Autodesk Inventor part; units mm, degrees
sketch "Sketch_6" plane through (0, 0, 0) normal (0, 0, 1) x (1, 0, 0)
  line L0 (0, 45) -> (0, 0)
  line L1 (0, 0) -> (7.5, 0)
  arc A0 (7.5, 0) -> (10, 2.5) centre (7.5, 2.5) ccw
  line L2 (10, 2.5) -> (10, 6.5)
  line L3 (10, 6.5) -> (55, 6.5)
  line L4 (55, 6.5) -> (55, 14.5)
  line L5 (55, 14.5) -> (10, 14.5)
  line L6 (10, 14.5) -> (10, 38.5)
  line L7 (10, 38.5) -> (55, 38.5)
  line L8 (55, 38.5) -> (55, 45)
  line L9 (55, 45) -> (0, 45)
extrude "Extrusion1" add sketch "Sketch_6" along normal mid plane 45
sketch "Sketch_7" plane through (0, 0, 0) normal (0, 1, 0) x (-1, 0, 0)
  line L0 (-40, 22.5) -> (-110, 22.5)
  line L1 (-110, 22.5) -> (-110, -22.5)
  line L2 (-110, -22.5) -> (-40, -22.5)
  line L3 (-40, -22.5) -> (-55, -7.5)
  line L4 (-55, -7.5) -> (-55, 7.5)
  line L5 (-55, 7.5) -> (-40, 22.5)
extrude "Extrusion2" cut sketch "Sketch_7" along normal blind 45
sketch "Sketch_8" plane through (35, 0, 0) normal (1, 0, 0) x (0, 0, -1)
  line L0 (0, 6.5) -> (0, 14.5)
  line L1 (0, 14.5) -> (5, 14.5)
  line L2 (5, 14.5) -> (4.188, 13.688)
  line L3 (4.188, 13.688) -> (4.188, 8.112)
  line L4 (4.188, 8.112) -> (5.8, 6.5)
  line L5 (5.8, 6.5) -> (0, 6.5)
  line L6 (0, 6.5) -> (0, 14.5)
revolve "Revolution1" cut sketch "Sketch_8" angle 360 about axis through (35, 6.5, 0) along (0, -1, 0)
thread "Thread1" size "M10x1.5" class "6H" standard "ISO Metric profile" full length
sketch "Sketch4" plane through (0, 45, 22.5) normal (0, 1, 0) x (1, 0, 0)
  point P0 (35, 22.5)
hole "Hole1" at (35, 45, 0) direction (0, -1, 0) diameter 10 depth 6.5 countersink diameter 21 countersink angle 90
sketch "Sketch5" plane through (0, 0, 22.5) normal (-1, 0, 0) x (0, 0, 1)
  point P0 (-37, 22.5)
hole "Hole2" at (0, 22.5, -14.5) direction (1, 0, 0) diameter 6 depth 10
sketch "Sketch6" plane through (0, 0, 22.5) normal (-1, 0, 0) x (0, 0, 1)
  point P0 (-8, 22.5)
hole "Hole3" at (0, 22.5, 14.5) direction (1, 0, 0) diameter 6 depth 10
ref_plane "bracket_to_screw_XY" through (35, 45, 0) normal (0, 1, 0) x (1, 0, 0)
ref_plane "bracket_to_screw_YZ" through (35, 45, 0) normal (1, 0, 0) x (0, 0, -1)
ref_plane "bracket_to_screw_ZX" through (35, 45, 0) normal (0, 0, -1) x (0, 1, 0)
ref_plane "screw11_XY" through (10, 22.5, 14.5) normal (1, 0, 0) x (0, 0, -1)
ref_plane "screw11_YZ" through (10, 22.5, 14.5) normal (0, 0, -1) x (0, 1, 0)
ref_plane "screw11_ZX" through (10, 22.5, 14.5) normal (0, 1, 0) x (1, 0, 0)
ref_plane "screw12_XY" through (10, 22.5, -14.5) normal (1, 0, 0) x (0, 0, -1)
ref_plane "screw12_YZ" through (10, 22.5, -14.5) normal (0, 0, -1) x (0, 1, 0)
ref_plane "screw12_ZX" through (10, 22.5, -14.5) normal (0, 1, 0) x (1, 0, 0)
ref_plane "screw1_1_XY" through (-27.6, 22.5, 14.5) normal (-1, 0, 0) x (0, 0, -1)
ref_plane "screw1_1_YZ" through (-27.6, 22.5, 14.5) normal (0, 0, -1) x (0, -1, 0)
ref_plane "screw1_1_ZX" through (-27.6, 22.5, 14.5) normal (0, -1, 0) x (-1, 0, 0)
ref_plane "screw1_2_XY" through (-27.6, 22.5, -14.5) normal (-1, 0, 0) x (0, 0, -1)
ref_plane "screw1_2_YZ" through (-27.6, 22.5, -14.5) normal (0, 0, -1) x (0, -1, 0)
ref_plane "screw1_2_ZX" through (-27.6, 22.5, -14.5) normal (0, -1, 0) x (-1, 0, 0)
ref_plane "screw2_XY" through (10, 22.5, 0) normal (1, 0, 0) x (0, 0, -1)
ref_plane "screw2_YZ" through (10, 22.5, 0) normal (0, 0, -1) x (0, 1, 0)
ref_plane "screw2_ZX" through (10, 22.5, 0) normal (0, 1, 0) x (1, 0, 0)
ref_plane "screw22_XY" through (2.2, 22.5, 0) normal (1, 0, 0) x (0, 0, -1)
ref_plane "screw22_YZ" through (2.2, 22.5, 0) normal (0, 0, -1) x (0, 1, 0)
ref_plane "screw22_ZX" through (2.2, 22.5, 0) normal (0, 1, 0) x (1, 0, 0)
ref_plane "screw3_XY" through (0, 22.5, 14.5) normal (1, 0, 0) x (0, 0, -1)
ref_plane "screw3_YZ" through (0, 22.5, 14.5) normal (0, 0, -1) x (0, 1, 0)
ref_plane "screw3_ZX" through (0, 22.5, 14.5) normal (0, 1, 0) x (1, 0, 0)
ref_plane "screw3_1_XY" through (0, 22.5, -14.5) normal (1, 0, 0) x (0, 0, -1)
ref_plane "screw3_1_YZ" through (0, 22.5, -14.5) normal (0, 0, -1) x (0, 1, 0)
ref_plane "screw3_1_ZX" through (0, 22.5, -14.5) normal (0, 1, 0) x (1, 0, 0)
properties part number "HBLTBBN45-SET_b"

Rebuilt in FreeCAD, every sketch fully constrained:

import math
import FreeCAD as App
import Part
import Sketcher
Q = App.Units.Quantity

doc = App.newDocument("Part")
body = doc.addObject("PartDesign::Body", "Body")

# Sketch on XY plane
sketch1 = body.newObject("Sketcher::SketchObject", "Sketch")
sketch1.AttachmentSupport = (doc.getObject("XY_Plane"), [""])
sketch1.MapMode = "FlatFace"
sketch1.addGeometry([
    Part.LineSegment(App.Vector(55, 45, 0), App.Vector(0, 45, 0)),  # 0
    Part.LineSegment(App.Vector(0, 45, 0), App.Vector(0, 0, 0)),  # 1
    Part.LineSegment(App.Vector(0, 0, 0), App.Vector(7.5, 0, 0)),  # 2
    Part.ArcOfCircle(Part.Circle(App.Vector(7.5, 2.5, 0), App.Vector(0, 0, 1), 2.5), math.radians(-90), math.radians(0)),  # 3
    Part.LineSegment(App.Vector(10, 2.5, 0), App.Vector(10, 6.5, 0)),  # 4
    Part.LineSegment(App.Vector(10, 6.5, 0), App.Vector(55, 6.5, 0)),  # 5
    Part.LineSegment(App.Vector(55, 6.5, 0), App.Vector(55, 14.5, 0)),  # 6
    Part.LineSegment(App.Vector(55, 14.5, 0), App.Vector(10, 14.5, 0)),  # 7
    Part.LineSegment(App.Vector(10, 14.5, 0), App.Vector(10, 38.5, 0)),  # 8
    Part.LineSegment(App.Vector(10, 38.5, 0), App.Vector(55, 38.5, 0)),  # 9
    Part.LineSegment(App.Vector(55, 38.5, 0), App.Vector(55, 45, 0)),  # 10
], False)
sketch1.addConstraint([
    Sketcher.Constraint("Coincident", 0, 2, 1, 1),
    Sketcher.Constraint("Coincident", 1, 2, 2, 1),
    Sketcher.Constraint("Tangent", 2, 2, 3, 1),
    Sketcher.Constraint("Tangent", 3, 2, 4, 1),
    Sketcher.Constraint("Coincident", 4, 2, 5, 1),
    Sketcher.Constraint("Coincident", 5, 2, 6, 1),
    Sketcher.Constraint("Coincident", 6, 2, 7, 1),
    Sketcher.Constraint("Coincident", 7, 2, 8, 1),
    Sketcher.Constraint("Coincident", 8, 2, 9, 1),
    Sketcher.Constraint("Coincident", 9, 2, 10, 1),
    Sketcher.Constraint("Coincident", 10, 2, 0, 1),
    Sketcher.Constraint("Horizontal", 0),
    Sketcher.Constraint("Vertical", 1),
    Sketcher.Constraint("Horizontal", 2),
    Sketcher.Constraint("Vertical", 4),
    Sketcher.Constraint("Horizontal", 5),
    Sketcher.Constraint("Vertical", 6),
    Sketcher.Constraint("Horizontal", 7),
    Sketcher.Constraint("Vertical", 8),
    Sketcher.Constraint("Horizontal", 9),
    Sketcher.Constraint("Vertical", 10),
    Sketcher.Constraint("Coincident", 1, 2, -1, 1),
    Sketcher.Constraint("Vertical", 4, 2, 7, 2),
    Sketcher.Constraint("Vertical", 6, 2, 9, 2),
    Sketcher.Constraint("Equal", 9, 1),
    Sketcher.Constraint("Radius", 3, 2.5),
    Sketcher.Constraint("DistanceX", 0, 2, 0, 1, 55.0),
    Sketcher.Constraint("DistanceX", 5, 1, 5, 2, 45.0),
    Sketcher.Constraint("DistanceY", 4, 1, 4, 2, 4.0),
    Sketcher.Constraint("DistanceY", 6, 1, 6, 2, 8.0),
    Sketcher.Constraint("DistanceY", 8, 1, 8, 2, 24.0),
])
pad1 = body.newObject("PartDesign::Pad", "Pad")
pad1.Profile = sketch1
pad1.Length = 45
pad1.Midplane = True

# Sketch on XZ plane
sketch2 = body.newObject("Sketcher::SketchObject", "Sketch001")
sketch2.AttachmentSupport = (doc.getObject("XZ_Plane"), [""])
sketch2.MapMode = "FlatFace"
sketch2.addGeometry([
    Part.LineSegment(App.Vector(55, 8, 0), App.Vector(40, 22, 0)),  # 0
    Part.LineSegment(App.Vector(40, 22, 0), App.Vector(110, 22, 0)),  # 1
    Part.LineSegment(App.Vector(110, 22, 0), App.Vector(110, -22, 0)),  # 2
    Part.LineSegment(App.Vector(110, -22, 0), App.Vector(40, -22, 0)),  # 3
    Part.LineSegment(App.Vector(40, -22, 0), App.Vector(55, -8, 0)),  # 4
    Part.LineSegment(App.Vector(55, -8, 0), App.Vector(55, 8, 0)),  # 5
], False)
sketch2.addConstraint([
    Sketcher.Constraint("Coincident", 0, 2, 1, 1),
    Sketcher.Constraint("Coincident", 1, 2, 2, 1),
    Sketcher.Constraint("Coincident", 2, 2, 3, 1),
    Sketcher.Constraint("Coincident", 3, 2, 4, 1),
    Sketcher.Constraint("Coincident", 4, 2, 5, 1),
    Sketcher.Constraint("Coincident", 5, 2, 0, 1),
    Sketcher.Constraint("Horizontal", 1),
    Sketcher.Constraint("Vertical", 2),
    Sketcher.Constraint("Horizontal", 3),
    Sketcher.Constraint("Vertical", 5),
    Sketcher.Constraint("Symmetric", 0, 2, 3, 2, -1),
    Sketcher.Constraint("Perpendicular", 0, 4),
    Sketcher.Constraint("Equal", 0, 4),
    Sketcher.Constraint("DistanceX", 1, 1, 1, 2, 70.0),
    Sketcher.Constraint("DistanceY", 2, 2, 2, 1, 45.0),
    Sketcher.Constraint("DistanceY", 5, 1, 5, 2, 15.0),
    Sketcher.Constraint("DistanceX", -1, 1, 0, 2, 40.0),
])
pocket1 = body.newObject("PartDesign::Pocket", "Pocket")
pocket1.Profile = sketch2
pocket1.Length = 45

# Sketch on YZ plane
sketch3 = body.newObject("Sketcher::SketchObject", "Sketch002")
sketch3.AttachmentSupport = (doc.getObject("YZ_Plane"), [""])
sketch3.MapMode = "FlatFace"
sketch3.AttachmentOffset = App.Placement(App.Vector(0, 0, 35), App.Rotation())
sketch3.addGeometry([
    Part.LineSegment(App.Vector(14.5, 0, 0), App.Vector(6.5, 0, 0)),  # 0
    Part.LineSegment(App.Vector(6.5, 0, 0), App.Vector(6.5, -5.8, 0)),  # 1
    Part.LineSegment(App.Vector(6.5, -5.8, 0), App.Vector(8.1, -4.2, 0)),  # 2
    Part.LineSegment(App.Vector(8.1, -4.2, 0), App.Vector(13.7, -4.2, 0)),  # 3
    Part.LineSegment(App.Vector(13.7, -4.2, 0), App.Vector(14.5, -5, 0)),  # 4
    Part.LineSegment(App.Vector(14.5, -5, 0), App.Vector(14.5, 0, 0)),  # 5
], False)
sketch3.addConstraint([
    Sketcher.Constraint("Coincident", 0, 2, 1, 1),
    Sketcher.Constraint("Coincident", 1, 2, 2, 1),
    Sketcher.Constraint("Coincident", 2, 2, 3, 1),
    Sketcher.Constraint("Coincident", 3, 2, 4, 1),
    Sketcher.Constraint("Coincident", 4, 2, 5, 1),
    Sketcher.Constraint("Coincident", 5, 2, 0, 1),
    Sketcher.Constraint("Horizontal", 0),
    Sketcher.Constraint("Vertical", 1),
    Sketcher.Constraint("Horizontal", 3),
    Sketcher.Constraint("Vertical", 5),
    Sketcher.Constraint("PointOnObject", 0, 2, -1),
    Sketcher.Constraint("Perpendicular", 2, 4),
    Sketcher.Constraint("DistanceX", 0, 2, 0, 1, 8.0),
    Sketcher.Constraint("DistanceY", 5, 1, 5, 2, 5.0),
    Sketcher.Constraint("Angle", 2, Q("45 deg")),
    Sketcher.Constraint("DistanceY", 1, 2, 1, 1, 5.8),
    Sketcher.Constraint("DistanceX", -1, 1, 0, 2, 6.5),
    Sketcher.Constraint("DistanceX", 3, 1, 3, 2, 5.576),
])
groove = body.newObject("PartDesign::Groove", "Groove")
groove.Profile = sketch3
groove.ReferenceAxis = (sketch3, ["H_Axis"])
groove.Angle = 360

# Sketch on XZ plane
sketch4 = body.newObject("Sketcher::SketchObject", "Sketch003")
sketch4.AttachmentSupport = (doc.getObject("XZ_Plane"), [""])
sketch4.MapMode = "FlatFace"
sketch4.AttachmentOffset = App.Placement(App.Vector(0, 0, -45), App.Rotation())
sketch4.addGeometry(Part.Circle(App.Vector(35, 0, 0), App.Vector(0, 0, 1), 5), False)
sketch4.addConstraint([
    Sketcher.Constraint("PointOnObject", 0, 3, -1),
    Sketcher.Constraint("Diameter", 0, 10.0),
    Sketcher.Constraint("DistanceX", -1, 1, 0, 3, 35.0),
])
doc.recompute()
hole = body.newObject("PartDesign::Hole", "Hole")
hole.Profile = sketch4
hole.ThreadType = "None"
hole.Diameter = 10
hole.DepthType = "Dimension"
hole.Depth = 6.5
hole.DrillPoint = "Flat"
hole.HoleCutType = "Countersink"
hole.HoleCutDiameter = 21
hole.HoleCutCountersinkAngle = 90
hole.Reversed = True

# Sketch on YZ plane
sketch5 = body.newObject("Sketcher::SketchObject", "Sketch004")
sketch5.AttachmentSupport = (doc.getObject("YZ_Plane"), [""])
sketch5.MapMode = "FlatFace"
sketch5.addGeometry(Part.Circle(App.Vector(22.5, -14.5, 0), App.Vector(0, 0, 1), 3), False)
sketch5.addConstraint([
    Sketcher.Constraint("Diameter", 0, 6.0),
    Sketcher.Constraint("DistanceX", -1, 1, 0, 3, 22.5),
    Sketcher.Constraint("DistanceY", 0, 3, -1, 1, 14.5),
])
doc.recompute()
hole2 = body.newObject("PartDesign::Hole", "Hole001")
hole2.Profile = sketch5
hole2.ThreadType = "None"
hole2.Diameter = 6
hole2.DepthType = "Dimension"
hole2.Depth = 10
hole2.DrillPoint = "Flat"
hole2.Reversed = True

# Sketch on YZ plane
sketch6 = body.newObject("Sketcher::SketchObject", "Sketch005")
sketch6.AttachmentSupport = (doc.getObject("YZ_Plane"), [""])
sketch6.MapMode = "FlatFace"
sketch6.addGeometry(Part.Circle(App.Vector(22.5, 14.5, 0), App.Vector(0, 0, 1), 3), False)
sketch6.addConstraint([
    Sketcher.Constraint("Diameter", 0, 6.0),
    Sketcher.Constraint("DistanceX", -1, 1, 0, 3, 22.5),
    Sketcher.Constraint("DistanceY", -1, 1, 0, 3, 14.5),
])
doc.recompute()
hole3 = body.newObject("PartDesign::Hole", "Hole002")
hole3.Profile = sketch6
hole3.ThreadType = "None"
hole3.Diameter = 6
hole3.DepthType = "Dimension"
hole3.Depth = 10
hole3.DrillPoint = "Flat"
hole3.Reversed = True

doc.recompute()
